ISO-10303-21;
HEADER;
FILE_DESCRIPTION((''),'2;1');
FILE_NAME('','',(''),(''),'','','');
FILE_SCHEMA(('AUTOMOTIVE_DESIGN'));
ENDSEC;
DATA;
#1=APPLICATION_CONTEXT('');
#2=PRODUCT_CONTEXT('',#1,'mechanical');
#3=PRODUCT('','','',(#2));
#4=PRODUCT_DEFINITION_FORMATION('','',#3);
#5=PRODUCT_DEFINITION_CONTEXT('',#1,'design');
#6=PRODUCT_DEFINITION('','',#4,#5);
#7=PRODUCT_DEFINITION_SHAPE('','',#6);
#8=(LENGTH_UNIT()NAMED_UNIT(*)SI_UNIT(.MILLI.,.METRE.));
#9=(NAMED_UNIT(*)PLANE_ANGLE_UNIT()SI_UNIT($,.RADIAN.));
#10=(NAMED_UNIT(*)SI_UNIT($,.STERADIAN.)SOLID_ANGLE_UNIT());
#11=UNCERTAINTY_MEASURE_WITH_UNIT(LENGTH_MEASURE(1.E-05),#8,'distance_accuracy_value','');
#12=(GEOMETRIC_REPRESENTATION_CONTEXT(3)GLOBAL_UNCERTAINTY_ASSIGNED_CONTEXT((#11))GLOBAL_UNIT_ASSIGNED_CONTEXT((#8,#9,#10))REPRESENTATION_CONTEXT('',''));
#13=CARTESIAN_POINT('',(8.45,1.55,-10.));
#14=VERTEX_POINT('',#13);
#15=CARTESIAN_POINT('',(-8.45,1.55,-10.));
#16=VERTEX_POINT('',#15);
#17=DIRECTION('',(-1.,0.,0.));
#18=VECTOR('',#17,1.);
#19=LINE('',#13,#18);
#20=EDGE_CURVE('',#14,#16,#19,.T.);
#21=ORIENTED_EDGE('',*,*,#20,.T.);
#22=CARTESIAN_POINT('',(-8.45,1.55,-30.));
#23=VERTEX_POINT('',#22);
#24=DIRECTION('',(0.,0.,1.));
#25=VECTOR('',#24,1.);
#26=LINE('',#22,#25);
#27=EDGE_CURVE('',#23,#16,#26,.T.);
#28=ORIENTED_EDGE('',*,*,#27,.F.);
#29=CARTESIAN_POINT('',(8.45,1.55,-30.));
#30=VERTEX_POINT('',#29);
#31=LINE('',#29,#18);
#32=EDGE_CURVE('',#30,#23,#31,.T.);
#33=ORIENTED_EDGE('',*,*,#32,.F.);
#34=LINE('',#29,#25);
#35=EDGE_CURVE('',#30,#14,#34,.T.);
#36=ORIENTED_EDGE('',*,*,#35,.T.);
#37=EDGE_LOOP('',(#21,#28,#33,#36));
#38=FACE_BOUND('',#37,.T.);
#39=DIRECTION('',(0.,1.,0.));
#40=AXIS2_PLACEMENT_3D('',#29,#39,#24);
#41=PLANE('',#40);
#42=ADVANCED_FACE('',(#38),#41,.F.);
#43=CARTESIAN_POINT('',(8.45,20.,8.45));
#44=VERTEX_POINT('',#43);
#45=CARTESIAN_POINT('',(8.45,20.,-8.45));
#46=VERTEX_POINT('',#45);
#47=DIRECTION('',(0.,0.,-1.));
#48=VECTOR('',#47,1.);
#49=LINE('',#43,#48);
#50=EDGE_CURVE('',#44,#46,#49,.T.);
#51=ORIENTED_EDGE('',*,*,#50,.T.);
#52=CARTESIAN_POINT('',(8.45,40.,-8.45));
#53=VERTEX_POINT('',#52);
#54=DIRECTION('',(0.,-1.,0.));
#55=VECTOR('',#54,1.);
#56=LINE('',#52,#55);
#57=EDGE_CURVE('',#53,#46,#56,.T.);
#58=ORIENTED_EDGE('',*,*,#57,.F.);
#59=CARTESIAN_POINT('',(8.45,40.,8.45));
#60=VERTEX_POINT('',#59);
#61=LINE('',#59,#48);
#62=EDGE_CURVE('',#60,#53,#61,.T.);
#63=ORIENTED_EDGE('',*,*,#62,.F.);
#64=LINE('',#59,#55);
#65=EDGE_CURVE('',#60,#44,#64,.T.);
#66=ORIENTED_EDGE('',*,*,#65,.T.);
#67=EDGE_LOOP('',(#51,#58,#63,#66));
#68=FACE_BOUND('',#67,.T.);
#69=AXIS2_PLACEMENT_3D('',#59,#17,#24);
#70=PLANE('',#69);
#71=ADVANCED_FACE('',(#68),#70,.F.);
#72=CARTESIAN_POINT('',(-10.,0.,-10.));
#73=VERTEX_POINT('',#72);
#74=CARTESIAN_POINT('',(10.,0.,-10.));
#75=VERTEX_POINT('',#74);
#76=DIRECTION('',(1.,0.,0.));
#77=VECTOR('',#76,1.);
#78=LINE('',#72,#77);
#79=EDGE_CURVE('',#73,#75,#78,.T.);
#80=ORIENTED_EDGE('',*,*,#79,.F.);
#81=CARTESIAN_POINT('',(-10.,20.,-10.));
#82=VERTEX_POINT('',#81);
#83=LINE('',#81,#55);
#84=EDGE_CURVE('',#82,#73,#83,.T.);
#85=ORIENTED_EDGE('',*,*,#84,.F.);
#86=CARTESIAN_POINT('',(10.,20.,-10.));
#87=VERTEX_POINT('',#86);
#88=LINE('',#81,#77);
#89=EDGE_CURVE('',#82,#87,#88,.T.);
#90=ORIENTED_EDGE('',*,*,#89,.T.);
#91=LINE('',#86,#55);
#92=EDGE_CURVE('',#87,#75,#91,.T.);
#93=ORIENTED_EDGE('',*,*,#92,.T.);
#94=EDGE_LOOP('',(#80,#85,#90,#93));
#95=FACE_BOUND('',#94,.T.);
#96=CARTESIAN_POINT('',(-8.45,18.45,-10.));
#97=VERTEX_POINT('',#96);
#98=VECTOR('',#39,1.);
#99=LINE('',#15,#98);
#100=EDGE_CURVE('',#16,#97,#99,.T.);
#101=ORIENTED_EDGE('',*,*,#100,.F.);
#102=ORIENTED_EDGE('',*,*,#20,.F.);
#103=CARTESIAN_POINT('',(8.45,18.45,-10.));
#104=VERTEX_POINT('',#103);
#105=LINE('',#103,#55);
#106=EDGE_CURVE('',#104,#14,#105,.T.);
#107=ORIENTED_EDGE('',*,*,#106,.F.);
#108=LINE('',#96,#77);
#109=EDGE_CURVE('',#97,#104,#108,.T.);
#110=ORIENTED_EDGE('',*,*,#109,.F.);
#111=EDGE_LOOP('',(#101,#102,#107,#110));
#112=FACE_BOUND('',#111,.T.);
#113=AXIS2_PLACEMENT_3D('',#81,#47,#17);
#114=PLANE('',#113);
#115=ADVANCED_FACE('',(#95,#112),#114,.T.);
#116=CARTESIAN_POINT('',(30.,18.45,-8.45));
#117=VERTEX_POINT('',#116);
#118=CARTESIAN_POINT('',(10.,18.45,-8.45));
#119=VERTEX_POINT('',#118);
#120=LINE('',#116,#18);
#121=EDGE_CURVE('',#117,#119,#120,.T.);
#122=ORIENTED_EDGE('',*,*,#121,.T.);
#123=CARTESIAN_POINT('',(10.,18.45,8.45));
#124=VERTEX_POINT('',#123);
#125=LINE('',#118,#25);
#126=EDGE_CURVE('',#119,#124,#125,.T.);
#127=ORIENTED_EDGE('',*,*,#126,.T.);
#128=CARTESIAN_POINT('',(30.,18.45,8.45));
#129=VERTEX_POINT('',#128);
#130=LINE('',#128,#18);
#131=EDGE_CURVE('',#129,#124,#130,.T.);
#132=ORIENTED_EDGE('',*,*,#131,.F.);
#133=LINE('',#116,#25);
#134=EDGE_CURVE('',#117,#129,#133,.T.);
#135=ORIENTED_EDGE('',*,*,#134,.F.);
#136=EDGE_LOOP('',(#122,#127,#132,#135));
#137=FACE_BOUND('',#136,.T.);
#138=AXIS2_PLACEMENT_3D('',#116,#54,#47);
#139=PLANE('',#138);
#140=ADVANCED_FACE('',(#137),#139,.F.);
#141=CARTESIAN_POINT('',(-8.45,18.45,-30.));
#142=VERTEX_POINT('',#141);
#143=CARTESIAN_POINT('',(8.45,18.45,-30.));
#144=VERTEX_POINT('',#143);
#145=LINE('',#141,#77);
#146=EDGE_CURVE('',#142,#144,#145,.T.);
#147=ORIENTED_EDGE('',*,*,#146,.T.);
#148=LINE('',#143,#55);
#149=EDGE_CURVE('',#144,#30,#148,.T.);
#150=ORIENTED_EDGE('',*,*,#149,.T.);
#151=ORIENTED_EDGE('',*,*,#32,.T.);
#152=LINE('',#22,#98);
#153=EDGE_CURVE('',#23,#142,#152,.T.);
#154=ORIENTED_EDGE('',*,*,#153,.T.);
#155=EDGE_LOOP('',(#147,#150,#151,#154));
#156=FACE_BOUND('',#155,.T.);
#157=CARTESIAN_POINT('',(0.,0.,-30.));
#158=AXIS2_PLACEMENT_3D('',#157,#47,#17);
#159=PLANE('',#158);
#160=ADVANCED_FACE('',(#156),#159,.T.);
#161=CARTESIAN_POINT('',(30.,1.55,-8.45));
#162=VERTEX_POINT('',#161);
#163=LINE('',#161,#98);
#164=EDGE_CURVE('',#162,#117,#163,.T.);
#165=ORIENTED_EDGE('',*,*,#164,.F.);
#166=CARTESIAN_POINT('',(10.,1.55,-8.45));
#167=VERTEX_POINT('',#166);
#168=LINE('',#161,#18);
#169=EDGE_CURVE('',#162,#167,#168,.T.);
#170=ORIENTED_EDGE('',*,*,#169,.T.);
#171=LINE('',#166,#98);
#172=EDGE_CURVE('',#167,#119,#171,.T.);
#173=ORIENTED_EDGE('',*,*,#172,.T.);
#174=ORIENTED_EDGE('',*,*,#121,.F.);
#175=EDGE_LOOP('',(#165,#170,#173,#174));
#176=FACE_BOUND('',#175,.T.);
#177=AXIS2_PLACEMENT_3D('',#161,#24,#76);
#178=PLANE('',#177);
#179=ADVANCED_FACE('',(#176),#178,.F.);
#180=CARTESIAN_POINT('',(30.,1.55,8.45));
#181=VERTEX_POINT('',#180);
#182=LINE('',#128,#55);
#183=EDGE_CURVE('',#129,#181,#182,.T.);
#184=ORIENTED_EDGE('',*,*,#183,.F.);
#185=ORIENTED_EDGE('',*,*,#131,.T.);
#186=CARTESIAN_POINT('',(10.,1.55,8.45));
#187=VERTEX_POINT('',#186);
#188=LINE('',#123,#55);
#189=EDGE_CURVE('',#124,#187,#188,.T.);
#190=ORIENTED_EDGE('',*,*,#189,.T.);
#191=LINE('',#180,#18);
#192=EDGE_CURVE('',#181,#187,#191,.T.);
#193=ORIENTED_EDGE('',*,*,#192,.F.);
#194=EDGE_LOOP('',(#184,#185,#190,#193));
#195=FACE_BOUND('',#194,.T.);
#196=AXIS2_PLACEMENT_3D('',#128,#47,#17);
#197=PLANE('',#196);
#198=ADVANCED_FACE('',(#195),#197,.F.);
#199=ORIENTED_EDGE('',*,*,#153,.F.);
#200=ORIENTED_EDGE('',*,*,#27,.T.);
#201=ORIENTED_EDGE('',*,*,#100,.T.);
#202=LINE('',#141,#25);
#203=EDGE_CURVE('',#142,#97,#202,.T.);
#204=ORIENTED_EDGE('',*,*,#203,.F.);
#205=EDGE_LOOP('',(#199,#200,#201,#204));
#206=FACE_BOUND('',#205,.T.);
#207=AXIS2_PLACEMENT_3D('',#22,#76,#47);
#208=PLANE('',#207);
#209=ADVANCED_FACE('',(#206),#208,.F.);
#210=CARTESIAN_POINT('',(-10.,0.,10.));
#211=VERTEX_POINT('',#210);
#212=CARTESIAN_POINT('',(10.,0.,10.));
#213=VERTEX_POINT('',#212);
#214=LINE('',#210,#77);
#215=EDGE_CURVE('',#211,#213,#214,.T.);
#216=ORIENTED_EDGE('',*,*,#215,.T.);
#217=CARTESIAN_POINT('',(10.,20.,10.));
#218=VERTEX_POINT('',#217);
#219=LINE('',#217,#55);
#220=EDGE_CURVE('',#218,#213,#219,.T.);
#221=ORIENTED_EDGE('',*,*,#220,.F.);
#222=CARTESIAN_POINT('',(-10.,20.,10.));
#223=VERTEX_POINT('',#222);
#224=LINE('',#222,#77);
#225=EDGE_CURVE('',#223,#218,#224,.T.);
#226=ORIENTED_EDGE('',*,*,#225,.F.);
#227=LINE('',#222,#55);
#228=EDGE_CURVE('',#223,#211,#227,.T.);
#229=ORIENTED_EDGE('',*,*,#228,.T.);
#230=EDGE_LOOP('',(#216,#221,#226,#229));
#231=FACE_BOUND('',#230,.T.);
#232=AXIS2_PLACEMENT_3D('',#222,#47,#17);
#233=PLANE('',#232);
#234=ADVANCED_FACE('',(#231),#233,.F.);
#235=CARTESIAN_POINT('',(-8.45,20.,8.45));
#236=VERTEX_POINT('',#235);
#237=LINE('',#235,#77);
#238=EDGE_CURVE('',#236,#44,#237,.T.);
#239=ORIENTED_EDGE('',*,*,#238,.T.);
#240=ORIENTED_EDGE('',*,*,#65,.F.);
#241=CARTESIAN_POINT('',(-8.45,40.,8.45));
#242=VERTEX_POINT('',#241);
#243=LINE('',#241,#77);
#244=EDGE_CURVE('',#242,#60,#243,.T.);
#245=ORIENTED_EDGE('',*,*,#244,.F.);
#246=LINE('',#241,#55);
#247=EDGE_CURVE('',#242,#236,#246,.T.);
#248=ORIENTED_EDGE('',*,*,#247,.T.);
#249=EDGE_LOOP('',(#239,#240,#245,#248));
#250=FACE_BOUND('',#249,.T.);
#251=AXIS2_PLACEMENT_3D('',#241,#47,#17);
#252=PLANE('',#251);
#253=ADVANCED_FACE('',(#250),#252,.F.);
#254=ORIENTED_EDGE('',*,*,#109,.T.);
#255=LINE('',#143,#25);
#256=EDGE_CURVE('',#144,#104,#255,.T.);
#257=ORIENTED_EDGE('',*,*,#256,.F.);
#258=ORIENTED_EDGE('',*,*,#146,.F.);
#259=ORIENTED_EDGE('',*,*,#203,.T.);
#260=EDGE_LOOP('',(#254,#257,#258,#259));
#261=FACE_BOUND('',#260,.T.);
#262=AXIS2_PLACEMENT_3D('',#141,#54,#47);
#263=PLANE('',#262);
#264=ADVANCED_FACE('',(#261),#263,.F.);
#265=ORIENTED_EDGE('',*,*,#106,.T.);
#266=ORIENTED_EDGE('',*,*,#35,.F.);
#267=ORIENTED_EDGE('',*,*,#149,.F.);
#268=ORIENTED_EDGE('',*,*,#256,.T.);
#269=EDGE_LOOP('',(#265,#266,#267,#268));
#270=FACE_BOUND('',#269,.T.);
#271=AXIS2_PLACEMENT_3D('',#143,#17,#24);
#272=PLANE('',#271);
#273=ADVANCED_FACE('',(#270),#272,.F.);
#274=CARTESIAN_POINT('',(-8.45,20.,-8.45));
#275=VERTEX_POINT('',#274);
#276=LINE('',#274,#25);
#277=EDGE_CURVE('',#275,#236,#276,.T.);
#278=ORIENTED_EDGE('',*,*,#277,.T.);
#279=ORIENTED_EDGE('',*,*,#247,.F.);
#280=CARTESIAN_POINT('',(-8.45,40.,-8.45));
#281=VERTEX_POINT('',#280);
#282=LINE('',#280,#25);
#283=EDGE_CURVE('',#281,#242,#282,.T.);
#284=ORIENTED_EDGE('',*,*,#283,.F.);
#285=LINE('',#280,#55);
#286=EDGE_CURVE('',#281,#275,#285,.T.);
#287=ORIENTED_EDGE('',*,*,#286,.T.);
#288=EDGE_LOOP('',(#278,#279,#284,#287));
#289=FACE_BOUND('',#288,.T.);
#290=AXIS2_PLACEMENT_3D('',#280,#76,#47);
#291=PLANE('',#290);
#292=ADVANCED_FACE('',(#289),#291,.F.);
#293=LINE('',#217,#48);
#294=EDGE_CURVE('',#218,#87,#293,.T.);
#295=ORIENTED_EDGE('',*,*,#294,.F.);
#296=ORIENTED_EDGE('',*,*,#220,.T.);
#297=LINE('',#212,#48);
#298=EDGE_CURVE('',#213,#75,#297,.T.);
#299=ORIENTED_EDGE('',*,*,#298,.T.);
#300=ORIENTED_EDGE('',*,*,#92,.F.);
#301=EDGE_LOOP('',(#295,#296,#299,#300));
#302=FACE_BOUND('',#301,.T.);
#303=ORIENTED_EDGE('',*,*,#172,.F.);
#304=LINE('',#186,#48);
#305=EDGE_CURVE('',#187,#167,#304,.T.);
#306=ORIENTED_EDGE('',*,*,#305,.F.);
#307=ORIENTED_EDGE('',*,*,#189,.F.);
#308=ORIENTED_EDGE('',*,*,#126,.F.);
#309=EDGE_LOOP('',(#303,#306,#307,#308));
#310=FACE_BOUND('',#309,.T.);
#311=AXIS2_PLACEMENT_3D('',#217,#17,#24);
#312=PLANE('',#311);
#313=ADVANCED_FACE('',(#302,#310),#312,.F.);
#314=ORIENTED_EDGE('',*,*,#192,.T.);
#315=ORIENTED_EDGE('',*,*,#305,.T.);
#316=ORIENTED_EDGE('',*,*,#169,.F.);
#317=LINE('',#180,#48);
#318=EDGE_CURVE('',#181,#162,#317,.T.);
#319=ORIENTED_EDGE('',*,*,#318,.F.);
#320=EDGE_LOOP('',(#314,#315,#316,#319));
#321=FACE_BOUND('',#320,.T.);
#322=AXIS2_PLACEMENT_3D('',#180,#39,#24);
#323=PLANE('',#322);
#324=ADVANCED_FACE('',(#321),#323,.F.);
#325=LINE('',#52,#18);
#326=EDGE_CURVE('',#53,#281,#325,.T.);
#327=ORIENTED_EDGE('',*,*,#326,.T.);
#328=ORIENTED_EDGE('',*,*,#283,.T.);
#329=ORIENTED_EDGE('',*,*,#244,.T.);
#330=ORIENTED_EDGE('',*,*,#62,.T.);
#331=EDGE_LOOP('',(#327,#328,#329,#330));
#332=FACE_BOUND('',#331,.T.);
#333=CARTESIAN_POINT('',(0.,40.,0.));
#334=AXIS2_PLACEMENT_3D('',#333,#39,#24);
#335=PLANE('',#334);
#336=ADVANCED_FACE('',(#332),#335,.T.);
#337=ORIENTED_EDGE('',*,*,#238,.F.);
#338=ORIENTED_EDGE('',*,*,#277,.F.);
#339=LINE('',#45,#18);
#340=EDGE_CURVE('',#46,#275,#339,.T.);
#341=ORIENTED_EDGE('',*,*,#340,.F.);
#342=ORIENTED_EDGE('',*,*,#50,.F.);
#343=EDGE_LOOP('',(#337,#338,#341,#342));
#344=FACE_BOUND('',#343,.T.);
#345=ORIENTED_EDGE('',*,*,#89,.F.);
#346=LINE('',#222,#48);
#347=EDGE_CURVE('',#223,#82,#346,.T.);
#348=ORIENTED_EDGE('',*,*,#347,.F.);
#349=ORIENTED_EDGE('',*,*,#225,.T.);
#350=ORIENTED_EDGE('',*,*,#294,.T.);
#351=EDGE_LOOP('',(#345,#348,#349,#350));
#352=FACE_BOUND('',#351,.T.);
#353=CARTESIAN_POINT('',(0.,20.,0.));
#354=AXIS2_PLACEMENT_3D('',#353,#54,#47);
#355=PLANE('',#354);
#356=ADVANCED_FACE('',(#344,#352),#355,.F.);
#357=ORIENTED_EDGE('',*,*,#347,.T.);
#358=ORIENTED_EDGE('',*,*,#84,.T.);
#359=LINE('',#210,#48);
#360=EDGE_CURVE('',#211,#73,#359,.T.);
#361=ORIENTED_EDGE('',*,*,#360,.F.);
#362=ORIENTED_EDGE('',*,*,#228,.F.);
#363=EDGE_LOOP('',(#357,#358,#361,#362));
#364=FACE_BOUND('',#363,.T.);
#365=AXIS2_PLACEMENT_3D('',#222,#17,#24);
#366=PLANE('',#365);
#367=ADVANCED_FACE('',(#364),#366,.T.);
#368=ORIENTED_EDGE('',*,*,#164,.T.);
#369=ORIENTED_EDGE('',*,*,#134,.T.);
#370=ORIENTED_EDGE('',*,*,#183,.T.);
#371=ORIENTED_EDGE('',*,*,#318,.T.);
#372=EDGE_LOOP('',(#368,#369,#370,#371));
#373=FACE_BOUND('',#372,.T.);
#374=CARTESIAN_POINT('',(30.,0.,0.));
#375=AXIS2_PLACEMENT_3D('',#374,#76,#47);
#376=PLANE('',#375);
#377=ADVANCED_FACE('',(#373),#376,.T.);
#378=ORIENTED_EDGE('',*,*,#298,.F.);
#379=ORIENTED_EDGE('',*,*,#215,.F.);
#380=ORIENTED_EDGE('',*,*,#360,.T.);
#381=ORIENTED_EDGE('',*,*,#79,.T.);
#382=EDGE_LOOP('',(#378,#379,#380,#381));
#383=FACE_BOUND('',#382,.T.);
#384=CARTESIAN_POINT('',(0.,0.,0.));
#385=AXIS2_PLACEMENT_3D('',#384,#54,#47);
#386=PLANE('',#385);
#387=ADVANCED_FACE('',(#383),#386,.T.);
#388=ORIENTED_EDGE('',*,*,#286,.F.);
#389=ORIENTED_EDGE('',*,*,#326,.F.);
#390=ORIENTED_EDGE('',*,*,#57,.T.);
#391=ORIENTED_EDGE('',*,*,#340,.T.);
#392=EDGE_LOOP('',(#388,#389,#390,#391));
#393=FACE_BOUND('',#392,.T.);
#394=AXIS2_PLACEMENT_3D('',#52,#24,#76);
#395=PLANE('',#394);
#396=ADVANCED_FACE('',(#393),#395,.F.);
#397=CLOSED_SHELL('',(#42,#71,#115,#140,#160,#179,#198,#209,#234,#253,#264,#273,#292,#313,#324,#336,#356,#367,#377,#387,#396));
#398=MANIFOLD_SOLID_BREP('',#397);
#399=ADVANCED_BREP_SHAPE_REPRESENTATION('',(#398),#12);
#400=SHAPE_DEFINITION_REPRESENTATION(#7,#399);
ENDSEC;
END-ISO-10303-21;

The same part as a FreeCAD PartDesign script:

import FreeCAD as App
import Part
import Sketcher

V = App.Vector
Q = App.Units.Quantity


def add_polygon(sketch, points):
    """Adds a closed chain of lines whose ends are joined by coincident constraints."""
    first, n = sketch.GeometryCount, len(points)
    for a, b in zip(points, points[1:] + points[:1]):
        sketch.addGeometry(Part.LineSegment(App.Vector(*a, 0), App.Vector(*b, 0)), False)
    for i in range(n):
        sketch.addConstraint(Sketcher.Constraint("Coincident", first + i, 2, first + (i + 1) % n, 1))

doc = App.newDocument("Part")
body = doc.addObject("PartDesign::Body", "Body")

# Sketch on XZ plane
sketch1 = doc.addObject("Sketcher::SketchObject", "Sketch")
body.addObject(sketch1)
sketch1.AttachmentSupport = (doc.XZ_Plane, [""])
sketch1.MapMode = "FlatFace"
add_polygon(sketch1, [(-10, -10), (-10, 10), (10, 10), (10, -10)])  # lines 0-3
sketch1.addConstraint(Sketcher.Constraint("Vertical", 0))
sketch1.addConstraint(Sketcher.Constraint("Horizontal", 1))
sketch1.addConstraint(Sketcher.Constraint("Vertical", 2))
sketch1.addConstraint(Sketcher.Constraint("Horizontal", 3))
sketch1.addConstraint(Sketcher.Constraint("Symmetric", 0, 2, 2, 2, -1, 1))
sketch1.addConstraint(Sketcher.Constraint("Equal", 3, 0))
sketch1.addConstraint(Sketcher.Constraint("DistanceX", 1, 1, 1, 2, Q("20 mm")))
pad1 = doc.addObject("PartDesign::Pad", "Pad")
body.addObject(pad1)
pad1.Profile = sketch1
pad1.Length = 20
pad1.Reversed = True

# Sketch on XZ plane
sketch2 = doc.addObject("Sketcher::SketchObject", "Sketch001")
body.addObject(sketch2)
sketch2.AttachmentSupport = (doc.XZ_Plane, [""])
sketch2.MapMode = "FlatFace"
sketch2.AttachmentOffset = App.Placement(V(0, 0, -20), App.Rotation())
add_polygon(sketch2, [(-8, -8), (-8, 8), (8, 8), (8, -8)])  # lines 0-3
sketch2.addConstraint(Sketcher.Constraint("Vertical", 0))
sketch2.addConstraint(Sketcher.Constraint("Horizontal", 1))
sketch2.addConstraint(Sketcher.Constraint("Vertical", 2))
sketch2.addConstraint(Sketcher.Constraint("Horizontal", 3))
sketch2.addConstraint(Sketcher.Constraint("Symmetric", 0, 2, 2, 2, -1, 1))
sketch2.addConstraint(Sketcher.Constraint("Equal", 3, 0))
sketch2.addConstraint(Sketcher.Constraint("DistanceX", 1, 1, 1, 2, Q("16.9 mm")))
pad2 = doc.addObject("PartDesign::Pad", "Pad001")
body.addObject(pad2)
pad2.Profile = sketch2
pad2.Length = 20
pad2.Reversed = True

# Sketch on YZ plane
sketch3 = doc.addObject("Sketcher::SketchObject", "Sketch002")
body.addObject(sketch3)
sketch3.AttachmentSupport = (doc.YZ_Plane, [""])
sketch3.MapMode = "FlatFace"
sketch3.AttachmentOffset = App.Placement(V(0, 0, 10), App.Rotation())
add_polygon(sketch3, [(18, 8), (2, 8), (2, -8), (18, -8)])  # lines 0-3
sketch3.addConstraint(Sketcher.Constraint("Horizontal", 0))
sketch3.addConstraint(Sketcher.Constraint("Vertical", 1))
sketch3.addConstraint(Sketcher.Constraint("Horizontal", 2))
sketch3.addConstraint(Sketcher.Constraint("Vertical", 3))
sketch3.addConstraint(Sketcher.Constraint("Equal", 2, 1))
sketch3.addConstraint(Sketcher.Constraint("DistanceX", 0, 2, 0, 1, Q("16.9 mm")))
sketch3.addConstraint(Sketcher.Constraint("DistanceX", -1, 1, 0, 2, Q("1.55 mm")))
sketch3.addConstraint(Sketcher.Constraint("DistanceY", -1, 1, 0, 2, Q("8.45 mm")))
pad3 = doc.addObject("PartDesign::Pad", "Pad002")
body.addObject(pad3)
pad3.Profile = sketch3
pad3.Length = 20

# Sketch on XY plane
sketch4 = doc.addObject("Sketcher::SketchObject", "Sketch003")
body.addObject(sketch4)
sketch4.AttachmentSupport = (doc.XY_Plane, [""])
sketch4.MapMode = "FlatFace"
sketch4.AttachmentOffset = App.Placement(V(0, 0, -10), App.Rotation())
add_polygon(sketch4, [(8, 18), (8, 2), (-8, 2), (-8, 18)])  # lines 0-3
sketch4.addConstraint(Sketcher.Constraint("Vertical", 0))
sketch4.addConstraint(Sketcher.Constraint("Horizontal", 1))
sketch4.addConstraint(Sketcher.Constraint("Vertical", 2))
sketch4.addConstraint(Sketcher.Constraint("Horizontal", 3))
sketch4.addConstraint(Sketcher.Constraint("Equal", 3, 0))
sketch4.addConstraint(Sketcher.Constraint("DistanceX", 1, 2, 1, 1, Q("16.9 mm")))
sketch4.addConstraint(Sketcher.Constraint("DistanceX", -1, 1, 0, 2, Q("8.45 mm")))
sketch4.addConstraint(Sketcher.Constraint("DistanceY", -1, 1, 0, 2, Q("1.55 mm")))
pad4 = doc.addObject("PartDesign::Pad", "Pad003")
body.addObject(pad4)
pad4.Profile = sketch4
pad4.Length = 20
pad4.Reversed = True

doc.recompute()
